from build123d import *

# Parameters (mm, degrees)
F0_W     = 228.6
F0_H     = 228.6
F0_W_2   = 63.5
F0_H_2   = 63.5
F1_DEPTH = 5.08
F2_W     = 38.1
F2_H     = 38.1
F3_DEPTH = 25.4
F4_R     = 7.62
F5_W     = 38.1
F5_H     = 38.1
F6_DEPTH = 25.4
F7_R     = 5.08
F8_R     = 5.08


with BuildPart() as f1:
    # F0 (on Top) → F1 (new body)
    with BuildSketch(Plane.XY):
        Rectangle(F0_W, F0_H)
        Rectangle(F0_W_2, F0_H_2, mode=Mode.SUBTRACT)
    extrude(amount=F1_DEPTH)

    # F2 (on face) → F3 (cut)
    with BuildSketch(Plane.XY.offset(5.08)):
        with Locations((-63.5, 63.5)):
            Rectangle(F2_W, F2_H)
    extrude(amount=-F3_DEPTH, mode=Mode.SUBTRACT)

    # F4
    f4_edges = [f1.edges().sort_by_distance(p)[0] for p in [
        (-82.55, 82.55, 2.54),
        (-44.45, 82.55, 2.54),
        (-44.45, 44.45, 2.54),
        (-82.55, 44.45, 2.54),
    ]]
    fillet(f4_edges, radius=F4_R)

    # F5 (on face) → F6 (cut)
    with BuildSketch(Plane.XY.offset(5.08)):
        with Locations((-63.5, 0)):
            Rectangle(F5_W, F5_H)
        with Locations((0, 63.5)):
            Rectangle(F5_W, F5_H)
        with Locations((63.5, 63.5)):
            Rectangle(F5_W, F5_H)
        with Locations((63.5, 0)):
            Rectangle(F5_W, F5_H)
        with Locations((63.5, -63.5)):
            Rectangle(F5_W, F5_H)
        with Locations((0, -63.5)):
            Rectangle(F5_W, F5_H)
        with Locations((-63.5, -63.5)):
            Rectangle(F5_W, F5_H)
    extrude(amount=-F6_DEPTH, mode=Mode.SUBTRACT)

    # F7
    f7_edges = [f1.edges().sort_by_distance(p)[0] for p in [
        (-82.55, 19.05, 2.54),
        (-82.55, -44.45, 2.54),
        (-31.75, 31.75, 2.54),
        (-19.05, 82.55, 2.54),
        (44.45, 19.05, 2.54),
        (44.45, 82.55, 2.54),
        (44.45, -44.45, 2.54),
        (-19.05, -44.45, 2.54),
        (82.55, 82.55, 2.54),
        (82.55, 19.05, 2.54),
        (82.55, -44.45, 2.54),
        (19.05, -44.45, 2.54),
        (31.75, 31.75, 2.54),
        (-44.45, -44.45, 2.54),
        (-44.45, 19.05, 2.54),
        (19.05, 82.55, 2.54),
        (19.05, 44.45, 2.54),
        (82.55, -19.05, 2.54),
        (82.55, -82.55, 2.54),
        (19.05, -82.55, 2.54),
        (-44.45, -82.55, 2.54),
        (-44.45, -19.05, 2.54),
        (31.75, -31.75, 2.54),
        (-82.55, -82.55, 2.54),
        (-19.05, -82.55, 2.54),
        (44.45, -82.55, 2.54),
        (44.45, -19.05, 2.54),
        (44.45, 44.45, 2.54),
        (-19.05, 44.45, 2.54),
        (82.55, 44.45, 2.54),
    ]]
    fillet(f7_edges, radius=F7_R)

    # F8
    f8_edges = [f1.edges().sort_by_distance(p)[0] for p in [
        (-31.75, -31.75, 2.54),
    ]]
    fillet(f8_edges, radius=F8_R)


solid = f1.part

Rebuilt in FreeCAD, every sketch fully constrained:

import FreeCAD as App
import Part
import Sketcher

V = App.Vector
Q = App.Units.Quantity


def edges_at(feature, points):
    """Names of the edges that pass closest to the given points."""
    edges = feature.Shape.Edges
    near = lambda p: min(range(len(edges)), key=lambda i: edges[i].distToShape(Part.Vertex(*p))[0])
    return sorted({f"Edge{near(p) + 1}" for p in points})


def add_polygon(sketch, points):
    """Adds a closed chain of lines whose ends are joined by coincident constraints."""
    first, n = sketch.GeometryCount, len(points)
    for a, b in zip(points, points[1:] + points[:1]):
        sketch.addGeometry(Part.LineSegment(App.Vector(*a, 0), App.Vector(*b, 0)), False)
    for i in range(n):
        sketch.addConstraint(Sketcher.Constraint("Coincident", first + i, 2, first + (i + 1) % n, 1))

doc = App.newDocument("Part")
body = doc.addObject("PartDesign::Body", "Body")

# Sketch on XY plane
sketch1 = body.newObject("Sketcher::SketchObject", "Sketch")
sketch1.AttachmentSupport = (doc.getObject("XY_Plane"), [""])
sketch1.MapMode = "FlatFace"
add_polygon(sketch1, [(-114, 114), (-114, -114), (114, -114), (114, 114)])  # lines 0-3
add_polygon(sketch1, [(32, -32), (-32, -32), (-32, 32), (32, 32)])  # lines 4-7
sketch1.addConstraint([
    Sketcher.Constraint("Vertical", 0),
    Sketcher.Constraint("Horizontal", 1),
    Sketcher.Constraint("Vertical", 2),
    Sketcher.Constraint("Horizontal", 3),
    Sketcher.Constraint("Horizontal", 4),
    Sketcher.Constraint("Vertical", 5),
    Sketcher.Constraint("Horizontal", 6),
    Sketcher.Constraint("Vertical", 7),
    Sketcher.Constraint("Symmetric", 0, 2, 2, 2, -1, 1),
    Sketcher.Constraint("Symmetric", 4, 2, 6, 2, -1, 1),
    Sketcher.Constraint("Equal", 3, 0),
    Sketcher.Constraint("Equal", 6, 5),
    Sketcher.Constraint("DistanceX", 1, 1, 1, 2, Q("9 in")),
    Sketcher.Constraint("DistanceX", 4, 2, 4, 1, Q("2.5 in")),
])
pad1 = body.newObject("PartDesign::Pad", "Pad")
pad1.Profile = sketch1
pad1.Length = Q("0.2 in")

# Sketch on XY plane
sketch2 = body.newObject("Sketcher::SketchObject", "Sketch001")
sketch2.AttachmentSupport = (doc.getObject("XY_Plane"), [""])
sketch2.MapMode = "FlatFace"
sketch2.AttachmentOffset = App.Placement(V(0, 0, 0.2 * 25.4), App.Rotation())
add_polygon(sketch2, [(-83, 83), (-83, 44), (-44, 44), (-44, 83)])  # lines 0-3
sketch2.addConstraint([
    Sketcher.Constraint("Vertical", 0),
    Sketcher.Constraint("Horizontal", 1),
    Sketcher.Constraint("Vertical", 2),
    Sketcher.Constraint("Horizontal", 3),
    Sketcher.Constraint("Equal", 3, 0),
    Sketcher.Constraint("DistanceX", 1, 1, 1, 2, Q("1.5 in")),
    Sketcher.Constraint("DistanceX", 0, 2, -1, 1, Q("3.25 in")),
    Sketcher.Constraint("DistanceY", -1, 1, 0, 2, Q("1.75 in")),
])
pocket1 = body.newObject("PartDesign::Pocket", "Pocket")
pocket1.Profile = sketch2
pocket1.Length = Q("1 in")
doc.recompute()

fillet = body.newObject("PartDesign::Fillet", "Fillet")
fillet.Base = (pocket1, edges_at(pocket1, [
    (-82.55, 82.55, 2.54),
    (-44.45, 82.55, 2.54),
    (-44.45, 44.45, 2.54),
    (-82.55, 44.45, 2.54),
]))
fillet.Radius = Q("0.3 in")

# Sketch on XY plane
sketch3 = body.newObject("Sketcher::SketchObject", "Sketch002")
sketch3.AttachmentSupport = (doc.getObject("XY_Plane"), [""])
sketch3.MapMode = "FlatFace"
sketch3.AttachmentOffset = App.Placement(V(0, 0, 0.2 * 25.4), App.Rotation())
add_polygon(sketch3, [(-83, 19), (-83, -19), (-44, -19), (-44, 19)])  # lines 0-3
add_polygon(sketch3, [(-19, 83), (-19, 44), (19, 44), (19, 83)])  # lines 4-7
add_polygon(sketch3, [(44, 83), (44, 44), (83, 44), (83, 83)])  # lines 8-11
add_polygon(sketch3, [(44, 19), (44, -19), (83, -19), (83, 19)])  # lines 12-15
add_polygon(sketch3, [(44, -44), (44, -83), (83, -83), (83, -44)])  # lines 16-19
add_polygon(sketch3, [(-19, -44), (-19, -83), (19, -83), (19, -44)])  # lines 20-23
add_polygon(sketch3, [(-83, -44), (-83, -83), (-44, -83), (-44, -44)])  # lines 24-27
sketch3.addConstraint([
    Sketcher.Constraint("Vertical", 0),
    Sketcher.Constraint("Horizontal", 1),
    Sketcher.Constraint("Vertical", 2),
    Sketcher.Constraint("Horizontal", 3),
    Sketcher.Constraint("Vertical", 4),
    Sketcher.Constraint("Horizontal", 5),
    Sketcher.Constraint("Vertical", 6),
    Sketcher.Constraint("Horizontal", 7),
    Sketcher.Constraint("Vertical", 8),
    Sketcher.Constraint("Horizontal", 9),
    Sketcher.Constraint("Vertical", 10),
    Sketcher.Constraint("Horizontal", 11),
    Sketcher.Constraint("Vertical", 12),
    Sketcher.Constraint("Horizontal", 13),
    Sketcher.Constraint("Vertical", 14),
    Sketcher.Constraint("Horizontal", 15),
    Sketcher.Constraint("Vertical", 16),
    Sketcher.Constraint("Horizontal", 17),
    Sketcher.Constraint("Vertical", 18),
    Sketcher.Constraint("Horizontal", 19),
    Sketcher.Constraint("Vertical", 20),
    Sketcher.Constraint("Horizontal", 21),
    Sketcher.Constraint("Vertical", 22),
    Sketcher.Constraint("Horizontal", 23),
    Sketcher.Constraint("Vertical", 24),
    Sketcher.Constraint("Horizontal", 25),
    Sketcher.Constraint("Vertical", 26),
    Sketcher.Constraint("Horizontal", 27),
    Sketcher.Constraint("Symmetric", 2, 2, 12, 2, -1, 1),
    Sketcher.Constraint("Symmetric", 0, 2, 14, 2, -1, 1),
    Sketcher.Constraint("Symmetric", 6, 2, 20, 2, -1, 1),
    Sketcher.Constraint("Symmetric", 4, 2, 22, 2, -1, 1),
    Sketcher.Constraint("Symmetric", 10, 2, 24, 2, -1, 1),
    Sketcher.Constraint("Symmetric", 8, 2, 26, 2, -1, 1),
    Sketcher.Constraint("Symmetric", 17, 2, 24, 2, -2),
    Sketcher.Constraint("Symmetric", 19, 2, 26, 2, -2),
    Sketcher.Constraint("Horizontal", 5, 2, 8, 2),
    Sketcher.Constraint("Horizontal", 7, 2, 10, 2),
    Sketcher.Constraint("Horizontal", 1, 2, 12, 2),
    Sketcher.Constraint("Vertical", 11, 2, 12, 2),
    Sketcher.Constraint("Vertical", 10, 2, 13, 2),
    Sketcher.Constraint("Vertical", 7, 2, 20, 2),
    Sketcher.Constraint("Equal", 3, 5),
    Sketcher.Constraint("Equal", 27, 0),
    Sketcher.Constraint("Equal", 2, 4),
    Sketcher.Constraint("DistanceX", 1, 1, 1, 2, Q("1.5 in")),
    Sketcher.Constraint("DistanceX", 2, 2, 4, 2, Q("1 in")),
    Sketcher.Constraint("DistanceY", 2, 2, 4, 2, Q("1 in")),
])
pocket2 = body.newObject("PartDesign::Pocket", "Pocket001")
pocket2.Profile = sketch3
pocket2.Length = Q("1 in")
doc.recompute()

fillet2 = body.newObject("PartDesign::Fillet", "Fillet001")
fillet2.Base = (pocket2, edges_at(pocket2, [
    (-82.55, 19.05, 2.54),
    (-82.55, -44.45, 2.54),
    (-31.75, 31.75, 2.54),
    (-19.05, 82.55, 2.54),
    (44.45, 19.05, 2.54),
    (44.45, 82.55, 2.54),
    (44.45, -44.45, 2.54),
    (-19.05, -44.45, 2.54),
    (82.55, 82.55, 2.54),
    (82.55, 19.05, 2.54),
    (82.55, -44.45, 2.54),
    (19.05, -44.45, 2.54),
    (31.75, 31.75, 2.54),
    (-44.45, -44.45, 2.54),
    (-44.45, 19.05, 2.54),
    (19.05, 82.55, 2.54),
    (19.05, 44.45, 2.54),
    (82.55, -19.05, 2.54),
    (82.55, -82.55, 2.54),
    (19.05, -82.55, 2.54),
    (-44.45, -82.55, 2.54),
    (-44.45, -19.05, 2.54),
    (31.75, -31.75, 2.54),
    (-82.55, -82.55, 2.54),
    (-19.05, -82.55, 2.54),
    (44.45, -82.55, 2.54),
    (44.45, -19.05, 2.54),
    (44.45, 44.45, 2.54),
    (-19.05, 44.45, 2.54),
    (82.55, 44.45, 2.54),
]))
fillet2.Radius = Q("0.2 in")
doc.recompute()

fillet3 = body.newObject("PartDesign::Fillet", "Fillet002")
fillet3.Base = (fillet2, edges_at(fillet2, [(-31.75, -31.75, 2.54)]))
fillet3.Radius = Q("0.2 in")

doc.recompute()
